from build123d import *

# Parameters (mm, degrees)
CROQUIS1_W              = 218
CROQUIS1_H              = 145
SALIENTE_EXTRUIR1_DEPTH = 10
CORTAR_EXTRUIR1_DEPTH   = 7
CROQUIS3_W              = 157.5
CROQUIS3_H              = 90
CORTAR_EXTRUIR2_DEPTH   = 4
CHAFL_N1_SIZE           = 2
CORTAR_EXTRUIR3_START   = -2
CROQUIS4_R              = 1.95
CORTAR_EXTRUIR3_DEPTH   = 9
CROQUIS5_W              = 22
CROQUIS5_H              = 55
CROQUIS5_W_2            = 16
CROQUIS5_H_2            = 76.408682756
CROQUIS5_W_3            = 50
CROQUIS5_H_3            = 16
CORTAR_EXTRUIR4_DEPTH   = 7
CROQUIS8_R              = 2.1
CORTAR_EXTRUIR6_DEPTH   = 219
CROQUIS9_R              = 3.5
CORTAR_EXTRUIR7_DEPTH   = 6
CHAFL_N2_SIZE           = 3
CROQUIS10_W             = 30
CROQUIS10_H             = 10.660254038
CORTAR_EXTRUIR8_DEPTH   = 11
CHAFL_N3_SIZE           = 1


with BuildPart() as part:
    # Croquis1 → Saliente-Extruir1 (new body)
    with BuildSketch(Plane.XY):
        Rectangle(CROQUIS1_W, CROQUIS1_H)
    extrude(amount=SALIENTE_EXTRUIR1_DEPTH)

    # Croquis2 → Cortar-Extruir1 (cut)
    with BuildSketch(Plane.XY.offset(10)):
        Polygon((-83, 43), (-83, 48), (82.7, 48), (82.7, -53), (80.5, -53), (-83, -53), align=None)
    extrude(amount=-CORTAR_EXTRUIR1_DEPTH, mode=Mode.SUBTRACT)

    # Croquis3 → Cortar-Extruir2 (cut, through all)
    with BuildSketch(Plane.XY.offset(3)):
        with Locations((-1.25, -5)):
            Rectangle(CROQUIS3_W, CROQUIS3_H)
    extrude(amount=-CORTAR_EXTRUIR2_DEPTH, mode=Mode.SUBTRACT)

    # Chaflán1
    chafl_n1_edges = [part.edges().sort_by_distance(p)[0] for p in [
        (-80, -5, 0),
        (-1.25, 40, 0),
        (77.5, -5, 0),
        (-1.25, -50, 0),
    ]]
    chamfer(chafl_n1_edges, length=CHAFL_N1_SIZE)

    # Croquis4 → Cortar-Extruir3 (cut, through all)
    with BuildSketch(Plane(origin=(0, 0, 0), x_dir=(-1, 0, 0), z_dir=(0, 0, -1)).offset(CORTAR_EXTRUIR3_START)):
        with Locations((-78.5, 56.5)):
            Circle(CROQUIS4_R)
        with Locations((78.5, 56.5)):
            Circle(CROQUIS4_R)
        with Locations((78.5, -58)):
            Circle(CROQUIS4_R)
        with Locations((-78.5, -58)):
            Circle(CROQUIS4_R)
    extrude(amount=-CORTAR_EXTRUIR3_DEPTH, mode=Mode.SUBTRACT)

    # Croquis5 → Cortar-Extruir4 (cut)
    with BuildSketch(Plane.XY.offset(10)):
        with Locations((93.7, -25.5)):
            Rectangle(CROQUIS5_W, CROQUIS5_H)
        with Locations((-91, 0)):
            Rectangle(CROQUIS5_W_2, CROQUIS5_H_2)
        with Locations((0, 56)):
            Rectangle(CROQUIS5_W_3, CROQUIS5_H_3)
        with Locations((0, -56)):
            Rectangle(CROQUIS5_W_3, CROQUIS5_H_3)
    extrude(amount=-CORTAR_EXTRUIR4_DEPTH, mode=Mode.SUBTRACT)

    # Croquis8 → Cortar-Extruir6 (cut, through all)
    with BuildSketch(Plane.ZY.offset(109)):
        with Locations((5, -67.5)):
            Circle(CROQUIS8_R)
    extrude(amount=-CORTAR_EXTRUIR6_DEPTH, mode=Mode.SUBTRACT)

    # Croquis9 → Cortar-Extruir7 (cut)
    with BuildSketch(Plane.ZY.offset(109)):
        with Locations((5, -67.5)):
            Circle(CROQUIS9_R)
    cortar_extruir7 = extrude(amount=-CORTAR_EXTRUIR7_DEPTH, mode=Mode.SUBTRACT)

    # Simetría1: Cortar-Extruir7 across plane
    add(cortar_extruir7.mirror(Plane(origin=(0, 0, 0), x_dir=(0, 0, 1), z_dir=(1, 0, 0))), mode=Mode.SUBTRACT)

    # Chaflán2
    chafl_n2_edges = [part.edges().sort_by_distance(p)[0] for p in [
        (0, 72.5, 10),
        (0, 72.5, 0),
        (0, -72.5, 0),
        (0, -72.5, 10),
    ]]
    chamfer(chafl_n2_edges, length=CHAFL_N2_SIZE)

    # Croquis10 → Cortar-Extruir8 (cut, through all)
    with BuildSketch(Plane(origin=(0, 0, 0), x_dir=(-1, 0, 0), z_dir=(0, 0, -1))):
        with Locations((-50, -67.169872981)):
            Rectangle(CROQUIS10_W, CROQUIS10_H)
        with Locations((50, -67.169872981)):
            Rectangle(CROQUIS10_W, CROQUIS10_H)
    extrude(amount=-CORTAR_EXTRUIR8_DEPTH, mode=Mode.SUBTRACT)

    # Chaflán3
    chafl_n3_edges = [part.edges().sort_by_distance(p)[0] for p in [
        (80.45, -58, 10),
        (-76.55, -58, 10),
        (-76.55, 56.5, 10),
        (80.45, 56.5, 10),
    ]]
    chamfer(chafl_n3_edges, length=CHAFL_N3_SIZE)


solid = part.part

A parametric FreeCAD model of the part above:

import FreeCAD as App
import Part
import Sketcher

V = App.Vector
Q = App.Units.Quantity


def edges_at(feature, points):
    """Names of the edges that pass closest to the given points."""
    edges = feature.Shape.Edges
    near = lambda p: min(range(len(edges)), key=lambda i: edges[i].distToShape(Part.Vertex(*p))[0])
    return sorted({f"Edge{near(p) + 1}" for p in points})


def add_polygon(sketch, points):
    """Adds a closed chain of lines whose ends are joined by coincident constraints."""
    first, n = sketch.GeometryCount, len(points)
    for a, b in zip(points, points[1:] + points[:1]):
        sketch.addGeometry(Part.LineSegment(App.Vector(*a, 0), App.Vector(*b, 0)), False)
    for i in range(n):
        sketch.addConstraint(Sketcher.Constraint("Coincident", first + i, 2, first + (i + 1) % n, 1))

doc = App.newDocument("Part")
body = doc.addObject("PartDesign::Body", "Body")

# Sketch on XY plane
sketch1 = body.newObject("Sketcher::SketchObject", "Sketch")
sketch1.AttachmentSupport = (doc.getObject("XY_Plane"), [""])
sketch1.MapMode = "FlatFace"
add_polygon(sketch1, [(-109, 72), (-109, -72), (109, -72), (109, 72)])  # lines 0-3
sketch1.addConstraint(Sketcher.Constraint("Vertical", 0))
sketch1.addConstraint(Sketcher.Constraint("Horizontal", 1))
sketch1.addConstraint(Sketcher.Constraint("Vertical", 2))
sketch1.addConstraint(Sketcher.Constraint("Horizontal", 3))
sketch1.addConstraint(Sketcher.Constraint("Symmetric", 0, 2, 2, 2, -1, 1))
sketch1.addConstraint(Sketcher.Constraint("DistanceX", 1, 1, 1, 2, Q("218 mm")))
sketch1.addConstraint(Sketcher.Constraint("DistanceY", 0, 2, 0, 1, Q("145 mm")))
pad1 = body.newObject("PartDesign::Pad", "Pad")
pad1.Profile = sketch1
pad1.Length = 10

# Sketch on XY plane
sketch2 = body.newObject("Sketcher::SketchObject", "Sketch001")
sketch2.AttachmentSupport = (doc.getObject("XY_Plane"), [""])
sketch2.MapMode = "FlatFace"
sketch2.AttachmentOffset = App.Placement(V(0, 0, 10), App.Rotation())
add_polygon(sketch2, [(-83, 48), (-83, -53), (83, -53), (83, 48)])  # lines 0-3
sketch2.addConstraint(Sketcher.Constraint("Vertical", 0))
sketch2.addConstraint(Sketcher.Constraint("Horizontal", 1))
sketch2.addConstraint(Sketcher.Constraint("Vertical", 2))
sketch2.addConstraint(Sketcher.Constraint("Horizontal", 3))
sketch2.addConstraint(Sketcher.Constraint("DistanceY", 0, 2, 0, 1, Q("101 mm")))
sketch2.addConstraint(Sketcher.Constraint("DistanceX", 1, 1, 1, 2, Q("165.7 mm")))
sketch2.addConstraint(Sketcher.Constraint("DistanceX", 0, 2, -1, 1, Q("83 mm")))
sketch2.addConstraint(Sketcher.Constraint("DistanceY", 0, 2, -1, 1, Q("53 mm")))
pocket1 = body.newObject("PartDesign::Pocket", "Pocket")
pocket1.Profile = sketch2
pocket1.Length = 7

# Sketch on XY plane
sketch3 = body.newObject("Sketcher::SketchObject", "Sketch002")
sketch3.AttachmentSupport = (doc.getObject("XY_Plane"), [""])
sketch3.MapMode = "FlatFace"
sketch3.AttachmentOffset = App.Placement(V(0, 0, 3), App.Rotation())
add_polygon(sketch3, [(-80, 40), (-80, -50), (78, -50), (78, 40)])  # lines 0-3
sketch3.addConstraint(Sketcher.Constraint("Vertical", 0))
sketch3.addConstraint(Sketcher.Constraint("Horizontal", 1))
sketch3.addConstraint(Sketcher.Constraint("Vertical", 2))
sketch3.addConstraint(Sketcher.Constraint("Horizontal", 3))
sketch3.addConstraint(Sketcher.Constraint("DistanceY", 0, 2, 0, 1, Q("90 mm")))
sketch3.addConstraint(Sketcher.Constraint("DistanceX", 1, 1, 1, 2, Q("157.5 mm")))
sketch3.addConstraint(Sketcher.Constraint("DistanceX", 0, 2, -1, 1, Q("80 mm")))
sketch3.addConstraint(Sketcher.Constraint("DistanceY", 0, 2, -1, 1, Q("50 mm")))
pocket2 = body.newObject("PartDesign::Pocket", "Pocket001")
pocket2.Profile = sketch3
pocket2.Type = "ThroughAll"
doc.recompute()

chamfer = body.newObject("PartDesign::Chamfer", "Chamfer")
chamfer.Base = (pocket2, edges_at(pocket2, [
    (-80, -5, 0),
    (-1.25, 40, 0),
    (77.5, -5, 0),
    (-1.25, -50, 0),
]))
chamfer.Size = 2

# Sketch on XY plane
sketch4 = body.newObject("Sketcher::SketchObject", "Sketch003")
sketch4.AttachmentSupport = (doc.getObject("XY_Plane"), [""])
sketch4.MapMode = "FlatFace"
sketch4.AttachmentOffset = App.Placement(V(0, 0, 2), App.Rotation())
sketch4.addGeometry(Part.Circle(V(78.5, 56.5, 0), V(0, 0, 1), 1.9), False)
sketch4.addGeometry(Part.Circle(V(-78.5, 56.5, 0), V(0, 0, 1), 1.9), False)
sketch4.addGeometry(Part.Circle(V(-78.5, -58, 0), V(0, 0, 1), 1.9), False)
sketch4.addGeometry(Part.Circle(V(78.5, -58, 0), V(0, 0, 1), 1.9), False)
sketch4.addConstraint(Sketcher.Constraint("Equal", 0, 1))
sketch4.addConstraint(Sketcher.Constraint("Equal", 1, 2))
sketch4.addConstraint(Sketcher.Constraint("Equal", 2, 3))
sketch4.addConstraint(Sketcher.Constraint("Symmetric", 0, 3, 1, 3, -2))
sketch4.addConstraint(Sketcher.Constraint("Symmetric", 2, 3, 3, 3, -2))
sketch4.addConstraint(Sketcher.Constraint("Vertical", 1, 3, 2, 3))
sketch4.addConstraint(Sketcher.Constraint("Diameter", 0, Q("3.9 mm")))
sketch4.addConstraint(Sketcher.Constraint("DistanceY", 2, 3, -1, 1, Q("58 mm")))
sketch4.addConstraint(Sketcher.Constraint("DistanceX", 1, 3, 0, 3, Q("157 mm")))
sketch4.addConstraint(Sketcher.Constraint("DistanceY", -1, 1, 0, 3, Q("56.5 mm")))
pocket3 = body.newObject("PartDesign::Pocket", "Pocket002")
pocket3.Profile = sketch4
pocket3.Type = "ThroughAll"
pocket3.Reversed = True

# Sketch on XY plane
sketch5 = body.newObject("Sketcher::SketchObject", "Sketch004")
sketch5.AttachmentSupport = (doc.getObject("XY_Plane"), [""])
sketch5.MapMode = "FlatFace"
sketch5.AttachmentOffset = App.Placement(V(0, 0, 10), App.Rotation())
add_polygon(sketch5, [(83, 2), (83, -53), (105, -53), (105, 2)])  # lines 0-3
add_polygon(sketch5, [(-99, 38), (-99, -38), (-83, -38), (-83, 38)])  # lines 4-7
add_polygon(sketch5, [(-25, 64), (-25, 48), (25, 48), (25, 64)])  # lines 8-11
add_polygon(sketch5, [(-25, -48), (-25, -64), (25, -64), (25, -48)])  # lines 12-15
sketch5.addConstraint(Sketcher.Constraint("Vertical", 0))
sketch5.addConstraint(Sketcher.Constraint("Horizontal", 1))
sketch5.addConstraint(Sketcher.Constraint("Vertical", 2))
sketch5.addConstraint(Sketcher.Constraint("Horizontal", 3))
sketch5.addConstraint(Sketcher.Constraint("Vertical", 4))
sketch5.addConstraint(Sketcher.Constraint("Horizontal", 5))
sketch5.addConstraint(Sketcher.Constraint("Vertical", 6))
sketch5.addConstraint(Sketcher.Constraint("Horizontal", 7))
sketch5.addConstraint(Sketcher.Constraint("Vertical", 8))
sketch5.addConstraint(Sketcher.Constraint("Horizontal", 9))
sketch5.addConstraint(Sketcher.Constraint("Vertical", 10))
sketch5.addConstraint(Sketcher.Constraint("Horizontal", 11))
sketch5.addConstraint(Sketcher.Constraint("Vertical", 12))
sketch5.addConstraint(Sketcher.Constraint("Horizontal", 13))
sketch5.addConstraint(Sketcher.Constraint("Vertical", 14))
sketch5.addConstraint(Sketcher.Constraint("Horizontal", 15))
sketch5.addConstraint(Sketcher.Constraint("Symmetric", 10, 2, 12, 2, -1, 1))
sketch5.addConstraint(Sketcher.Constraint("Symmetric", 8, 2, 14, 2, -1, 1))
sketch5.addConstraint(Sketcher.Constraint("Vertical", 11, 2, 12, 2))
sketch5.addConstraint(Sketcher.Constraint("Equal", 7, 8))
sketch5.addConstraint(Sketcher.Constraint("DistanceX", 1, 1, 1, 2, Q("22 mm")))
sketch5.addConstraint(Sketcher.Constraint("DistanceX", 5, 1, 5, 2, Q("16 mm")))
sketch5.addConstraint(Sketcher.Constraint("DistanceX", 9, 1, 9, 2, Q("50 mm")))
sketch5.addConstraint(Sketcher.Constraint("DistanceY", 0, 2, 0, 1, Q("55 mm")))
sketch5.addConstraint(Sketcher.Constraint("DistanceY", 0, 2, -1, 1, Q("53 mm")))
sketch5.addConstraint(Sketcher.Constraint("DistanceX", 4, 2, -1, 1, Q("99 mm")))
sketch5.addConstraint(Sketcher.Constraint("DistanceY", -1, 1, 8, 2, Q("48 mm")))
sketch5.addConstraint(Sketcher.Constraint("DistanceX", -1, 1, 0, 2, Q("82.7 mm")))
sketch5.addConstraint(Sketcher.Constraint("DistanceY", 4, 2, 4, 1, Q("76.408683 mm")))
sketch5.addConstraint(Sketcher.Constraint("DistanceY", 4, 2, -1, 1, Q("38.204341 mm")))
pocket4 = body.newObject("PartDesign::Pocket", "Pocket003")
pocket4.Profile = sketch5
pocket4.Length = 7

# Sketch on YZ plane
sketch6 = body.newObject("Sketcher::SketchObject", "Sketch005")
sketch6.AttachmentSupport = (doc.getObject("YZ_Plane"), [""])
sketch6.MapMode = "FlatFace"
sketch6.AttachmentOffset = App.Placement(V(0, 0, -109), App.Rotation())
sketch6.addGeometry(Part.Circle(V(-67.5, 5, 0), V(0, 0, 1), 2.1), False)
sketch6.addConstraint(Sketcher.Constraint("Diameter", 0, Q("4.2 mm")))
sketch6.addConstraint(Sketcher.Constraint("DistanceY", -1, 1, 0, 3, Q("5 mm")))
sketch6.addConstraint(Sketcher.Constraint("DistanceX", 0, 3, -1, 1, Q("67.5 mm")))
pocket5 = body.newObject("PartDesign::Pocket", "Pocket004")
pocket5.Profile = sketch6
pocket5.Type = "ThroughAll"
pocket5.Reversed = True

# Sketch on YZ plane
sketch7 = body.newObject("Sketcher::SketchObject", "Sketch006")
sketch7.AttachmentSupport = (doc.getObject("YZ_Plane"), [""])
sketch7.MapMode = "FlatFace"
sketch7.AttachmentOffset = App.Placement(V(0, 0, -109), App.Rotation())
sketch7.addGeometry(Part.Circle(V(-67.5, 5, 0), V(0, 0, 1), 3.5), False)
sketch7.addConstraint(Sketcher.Constraint("Diameter", 0, Q("7 mm")))
sketch7.addConstraint(Sketcher.Constraint("DistanceY", -1, 1, 0, 3, Q("5 mm")))
sketch7.addConstraint(Sketcher.Constraint("DistanceX", 0, 3, -1, 1, Q("67.5 mm")))
pocket6 = body.newObject("PartDesign::Pocket", "Pocket005")
pocket6.Profile = sketch7
pocket6.Length = 6
pocket6.Reversed = True
doc.recompute()

mirrored = body.newObject("PartDesign::Mirrored", "Mirrored")
mirrored.Originals = [pocket6]
mirrored.MirrorPlane = (doc.getObject("YZ_Plane"), [""])
body.Tip = mirrored
doc.recompute()

chamfer2 = body.newObject("PartDesign::Chamfer", "Chamfer001")
chamfer2.Base = (mirrored, edges_at(mirrored, [
    (0, 72.5, 10),
    (0, 72.5, 0),
    (0, -72.5, 0),
    (0, -72.5, 10),
]))
chamfer2.Size = 3

# Sketch on XY plane
sketch8 = body.newObject("Sketcher::SketchObject", "Sketch007")
sketch8.AttachmentSupport = (doc.getObject("XY_Plane"), [""])
sketch8.MapMode = "FlatFace"
add_polygon(sketch8, [(65, -62), (65, -72), (35, -72), (35, -62)])  # lines 0-3
add_polygon(sketch8, [(-35, -62), (-35, -72), (-65, -72), (-65, -62)])  # lines 4-7
sketch8.addConstraint(Sketcher.Constraint("Vertical", 0))
sketch8.addConstraint(Sketcher.Constraint("Horizontal", 1))
sketch8.addConstraint(Sketcher.Constraint("Vertical", 2))
sketch8.addConstraint(Sketcher.Constraint("Horizontal", 3))
sketch8.addConstraint(Sketcher.Constraint("Vertical", 4))
sketch8.addConstraint(Sketcher.Constraint("Horizontal", 5))
sketch8.addConstraint(Sketcher.Constraint("Vertical", 6))
sketch8.addConstraint(Sketcher.Constraint("Horizontal", 7))
sketch8.addConstraint(Sketcher.Constraint("Symmetric", 1, 2, 4, 2, -2))
sketch8.addConstraint(Sketcher.Constraint("Symmetric", 3, 2, 6, 2, -2))
sketch8.addConstraint(Sketcher.Constraint("DistanceX", 1, 2, 1, 1, Q("30 mm")))
sketch8.addConstraint(Sketcher.Constraint("DistanceX", -1, 1, 0, 2, Q("65 mm")))
sketch8.addConstraint(Sketcher.Constraint("DistanceY", 0, 2, -1, 1, Q("72.5 mm")))
sketch8.addConstraint(Sketcher.Constraint("DistanceY", 0, 2, 0, 1, Q("10.660254 mm")))
pocket7 = body.newObject("PartDesign::Pocket", "Pocket006")
pocket7.Profile = sketch8
pocket7.Type = "ThroughAll"
pocket7.Reversed = True
doc.recompute()

chamfer3 = body.newObject("PartDesign::Chamfer", "Chamfer002")
chamfer3.Base = (pocket7, edges_at(pocket7, [
    (80.45, -58, 10),
    (-76.55, -58, 10),
    (-76.55, 56.5, 10),
    (80.45, 56.5, 10),
]))
chamfer3.Size = 1

doc.recompute()
